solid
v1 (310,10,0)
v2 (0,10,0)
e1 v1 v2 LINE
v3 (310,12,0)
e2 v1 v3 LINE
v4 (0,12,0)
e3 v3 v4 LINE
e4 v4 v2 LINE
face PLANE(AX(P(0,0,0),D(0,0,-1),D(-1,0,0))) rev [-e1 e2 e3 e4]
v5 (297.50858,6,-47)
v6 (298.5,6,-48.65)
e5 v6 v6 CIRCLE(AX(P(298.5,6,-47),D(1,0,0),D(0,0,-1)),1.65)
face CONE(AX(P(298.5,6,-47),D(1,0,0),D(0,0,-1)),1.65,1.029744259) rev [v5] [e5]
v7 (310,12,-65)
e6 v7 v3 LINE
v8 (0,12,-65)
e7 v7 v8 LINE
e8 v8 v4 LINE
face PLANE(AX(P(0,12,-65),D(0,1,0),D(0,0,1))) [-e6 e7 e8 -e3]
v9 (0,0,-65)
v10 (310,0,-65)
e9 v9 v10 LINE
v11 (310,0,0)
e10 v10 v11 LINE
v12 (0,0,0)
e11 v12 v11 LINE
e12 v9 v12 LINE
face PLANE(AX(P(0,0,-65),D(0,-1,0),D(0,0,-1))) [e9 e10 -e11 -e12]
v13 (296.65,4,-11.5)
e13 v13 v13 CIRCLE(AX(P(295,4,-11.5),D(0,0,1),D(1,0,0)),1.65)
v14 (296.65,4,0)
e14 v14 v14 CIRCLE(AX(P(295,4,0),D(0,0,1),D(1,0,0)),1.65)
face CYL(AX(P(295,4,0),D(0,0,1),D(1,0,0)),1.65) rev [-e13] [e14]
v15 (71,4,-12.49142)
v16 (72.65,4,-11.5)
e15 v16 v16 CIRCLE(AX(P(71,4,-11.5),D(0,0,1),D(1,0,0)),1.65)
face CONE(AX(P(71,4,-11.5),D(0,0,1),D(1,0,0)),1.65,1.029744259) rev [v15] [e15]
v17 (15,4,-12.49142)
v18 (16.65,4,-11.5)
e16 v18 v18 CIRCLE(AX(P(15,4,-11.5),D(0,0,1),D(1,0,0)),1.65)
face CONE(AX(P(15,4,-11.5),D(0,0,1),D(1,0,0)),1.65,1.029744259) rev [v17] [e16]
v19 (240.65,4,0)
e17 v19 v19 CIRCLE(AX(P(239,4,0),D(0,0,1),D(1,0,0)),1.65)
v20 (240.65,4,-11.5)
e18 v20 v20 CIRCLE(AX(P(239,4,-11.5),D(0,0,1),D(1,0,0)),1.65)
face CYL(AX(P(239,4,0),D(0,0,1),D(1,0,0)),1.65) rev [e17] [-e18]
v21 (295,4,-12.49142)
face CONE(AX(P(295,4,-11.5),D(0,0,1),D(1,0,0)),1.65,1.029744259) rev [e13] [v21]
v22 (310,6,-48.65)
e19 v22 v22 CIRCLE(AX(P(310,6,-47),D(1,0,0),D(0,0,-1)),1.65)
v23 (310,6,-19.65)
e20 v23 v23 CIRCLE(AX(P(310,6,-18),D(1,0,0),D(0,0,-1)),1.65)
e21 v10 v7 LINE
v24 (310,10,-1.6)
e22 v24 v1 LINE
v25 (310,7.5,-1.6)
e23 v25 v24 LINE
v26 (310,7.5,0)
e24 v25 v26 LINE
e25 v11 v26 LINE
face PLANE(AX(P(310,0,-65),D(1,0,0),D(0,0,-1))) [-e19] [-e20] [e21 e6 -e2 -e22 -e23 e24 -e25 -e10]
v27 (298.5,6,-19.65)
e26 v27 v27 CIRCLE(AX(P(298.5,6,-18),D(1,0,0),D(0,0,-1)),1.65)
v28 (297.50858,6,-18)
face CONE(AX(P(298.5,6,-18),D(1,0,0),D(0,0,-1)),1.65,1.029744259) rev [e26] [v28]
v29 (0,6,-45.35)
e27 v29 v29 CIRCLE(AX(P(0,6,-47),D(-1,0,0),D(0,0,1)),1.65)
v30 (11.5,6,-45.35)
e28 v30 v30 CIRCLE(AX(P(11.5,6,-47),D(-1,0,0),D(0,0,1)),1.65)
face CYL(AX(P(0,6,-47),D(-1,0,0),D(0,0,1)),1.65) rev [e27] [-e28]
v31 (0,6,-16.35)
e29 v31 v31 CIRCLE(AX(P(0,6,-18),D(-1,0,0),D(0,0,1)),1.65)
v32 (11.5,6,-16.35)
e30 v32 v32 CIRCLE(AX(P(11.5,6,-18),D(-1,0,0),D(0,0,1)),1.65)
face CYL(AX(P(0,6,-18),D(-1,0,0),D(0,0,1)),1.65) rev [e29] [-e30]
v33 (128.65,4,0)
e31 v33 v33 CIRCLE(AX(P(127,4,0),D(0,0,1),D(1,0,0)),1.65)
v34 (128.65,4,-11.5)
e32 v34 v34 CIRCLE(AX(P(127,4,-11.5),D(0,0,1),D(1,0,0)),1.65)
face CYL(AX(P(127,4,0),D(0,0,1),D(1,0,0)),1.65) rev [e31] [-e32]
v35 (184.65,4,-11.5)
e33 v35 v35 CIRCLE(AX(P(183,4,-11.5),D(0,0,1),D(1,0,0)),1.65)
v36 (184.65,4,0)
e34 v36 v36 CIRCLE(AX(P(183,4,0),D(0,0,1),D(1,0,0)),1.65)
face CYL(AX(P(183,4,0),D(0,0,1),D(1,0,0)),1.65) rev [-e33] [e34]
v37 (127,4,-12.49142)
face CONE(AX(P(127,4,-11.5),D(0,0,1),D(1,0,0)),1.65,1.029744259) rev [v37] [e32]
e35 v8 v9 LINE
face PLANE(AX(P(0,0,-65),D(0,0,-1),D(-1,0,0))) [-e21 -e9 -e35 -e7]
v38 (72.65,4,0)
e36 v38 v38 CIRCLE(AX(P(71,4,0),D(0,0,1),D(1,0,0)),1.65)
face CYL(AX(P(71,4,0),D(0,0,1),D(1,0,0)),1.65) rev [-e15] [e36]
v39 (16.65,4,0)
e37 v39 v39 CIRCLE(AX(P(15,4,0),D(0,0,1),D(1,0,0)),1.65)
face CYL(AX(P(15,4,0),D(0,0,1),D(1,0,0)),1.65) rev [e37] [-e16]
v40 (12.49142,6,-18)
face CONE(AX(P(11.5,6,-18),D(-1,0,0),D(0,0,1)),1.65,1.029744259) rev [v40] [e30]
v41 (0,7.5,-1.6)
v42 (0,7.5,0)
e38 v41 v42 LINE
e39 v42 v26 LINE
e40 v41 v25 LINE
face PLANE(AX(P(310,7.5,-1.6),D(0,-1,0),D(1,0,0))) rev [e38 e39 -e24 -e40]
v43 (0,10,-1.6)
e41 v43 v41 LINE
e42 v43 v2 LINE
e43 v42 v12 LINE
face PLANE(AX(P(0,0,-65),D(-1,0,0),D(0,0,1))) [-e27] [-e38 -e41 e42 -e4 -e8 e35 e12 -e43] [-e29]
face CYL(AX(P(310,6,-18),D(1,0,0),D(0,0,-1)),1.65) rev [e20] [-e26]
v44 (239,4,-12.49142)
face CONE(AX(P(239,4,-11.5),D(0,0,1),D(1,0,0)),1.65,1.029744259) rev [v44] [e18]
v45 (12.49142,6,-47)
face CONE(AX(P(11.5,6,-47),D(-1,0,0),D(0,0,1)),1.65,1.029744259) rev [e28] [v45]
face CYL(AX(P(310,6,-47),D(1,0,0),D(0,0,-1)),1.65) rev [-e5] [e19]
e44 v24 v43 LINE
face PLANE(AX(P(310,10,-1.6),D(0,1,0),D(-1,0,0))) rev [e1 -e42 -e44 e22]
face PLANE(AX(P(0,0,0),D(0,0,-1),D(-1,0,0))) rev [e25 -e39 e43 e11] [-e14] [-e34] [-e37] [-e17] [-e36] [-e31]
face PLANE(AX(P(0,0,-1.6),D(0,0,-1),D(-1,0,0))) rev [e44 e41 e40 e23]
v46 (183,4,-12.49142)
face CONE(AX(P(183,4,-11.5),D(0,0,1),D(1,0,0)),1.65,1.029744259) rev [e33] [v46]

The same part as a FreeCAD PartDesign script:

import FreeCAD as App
import Part
import Sketcher
Q = App.Units.Quantity

doc = App.newDocument("Part")
body = doc.addObject("PartDesign::Body", "Body")

# Sketch on XY plane
sketch1 = body.newObject("Sketcher::SketchObject", "Sketch")
sketch1.AttachmentSupport = (doc.getObject("XY_Plane"), [""])
sketch1.MapMode = "FlatFace"
sketch1.addGeometry([
    Part.LineSegment(App.Vector(0, 12, 0), App.Vector(0, 0, 0)),
    Part.LineSegment(App.Vector(0, 0, 0), App.Vector(310, 0, 0)),
    Part.LineSegment(App.Vector(310, 0, 0), App.Vector(310, 12, 0)),
    Part.LineSegment(App.Vector(310, 12, 0), App.Vector(0, 12, 0)),
], False)
sketch1.addConstraint([
    Sketcher.Constraint("Coincident", 0, 2, 1, 1),
    Sketcher.Constraint("Coincident", 1, 2, 2, 1),
    Sketcher.Constraint("Coincident", 2, 2, 3, 1),
    Sketcher.Constraint("Coincident", 3, 2, 0, 1),
    Sketcher.Constraint("Vertical", 0),
    Sketcher.Constraint("Horizontal", 1),
    Sketcher.Constraint("Vertical", 2),
    Sketcher.Constraint("Horizontal", 3),
    Sketcher.Constraint("Coincident", 0, 2, -1, 1),
    Sketcher.Constraint("DistanceX", 1, 1, 1, 2, Q("310 mm")),
    Sketcher.Constraint("DistanceY", 0, 2, 0, 1, Q("12 mm")),
])
pad1 = body.newObject("PartDesign::Pad", "Pad")
pad1.Profile = sketch1
pad1.Length = 65
pad1.Reversed = True

# Sketch on XY plane
sketch2 = body.newObject("Sketcher::SketchObject", "Sketch001")
sketch2.AttachmentSupport = (doc.getObject("XY_Plane"), [""])
sketch2.MapMode = "FlatFace"
sketch2.addGeometry([
    Part.LineSegment(App.Vector(0, 10, 0), App.Vector(0, 7.5, 0)),
    Part.LineSegment(App.Vector(0, 7.5, 0), App.Vector(310, 7.5, 0)),
    Part.LineSegment(App.Vector(310, 7.5, 0), App.Vector(310, 10, 0)),
    Part.LineSegment(App.Vector(310, 10, 0), App.Vector(0, 10, 0)),
], False)
sketch2.addConstraint([
    Sketcher.Constraint("Coincident", 0, 2, 1, 1),
    Sketcher.Constraint("Coincident", 1, 2, 2, 1),
    Sketcher.Constraint("Coincident", 2, 2, 3, 1),
    Sketcher.Constraint("Coincident", 3, 2, 0, 1),
    Sketcher.Constraint("Vertical", 0),
    Sketcher.Constraint("Horizontal", 1),
    Sketcher.Constraint("Vertical", 2),
    Sketcher.Constraint("Horizontal", 3),
    Sketcher.Constraint("PointOnObject", 0, 2, -2),
    Sketcher.Constraint("DistanceX", 1, 1, 1, 2, Q("310 mm")),
    Sketcher.Constraint("DistanceY", 0, 2, 0, 1, Q("2.5 mm")),
    Sketcher.Constraint("DistanceY", -1, 1, 2, 2, Q("10 mm")),
])
pocket1 = body.newObject("PartDesign::Pocket", "Pocket")
pocket1.Profile = sketch2
pocket1.Length = 1.6

# Sketch on XY plane
sketch3 = body.newObject("Sketcher::SketchObject", "Sketch002")
sketch3.AttachmentSupport = (doc.getObject("XY_Plane"), [""])
sketch3.MapMode = "FlatFace"
sketch3.addGeometry([
    Part.Circle(App.Vector(295, 4, 0), App.Vector(0, 0, 1), 1.65),  # 0
    Part.Circle(App.Vector(15, 4, 0), App.Vector(0, 0, 1), 1.65),  # 1
    Part.Circle(App.Vector(71, 4, 0), App.Vector(0, 0, 1), 1.65),  # 2
    Part.Circle(App.Vector(127, 4, 0), App.Vector(0, 0, 1), 1.65),  # 3
    Part.Circle(App.Vector(183, 4, 0), App.Vector(0, 0, 1), 1.65),  # 4
    Part.Circle(App.Vector(239, 4, 0), App.Vector(0, 0, 1), 1.65),  # 5
], False)
sketch3.addConstraint([
    Sketcher.Constraint("Equal", 0, 1),
    Sketcher.Constraint("Equal", 1, 2),
    Sketcher.Constraint("Equal", 2, 3),
    Sketcher.Constraint("Equal", 3, 4),
    Sketcher.Constraint("Equal", 4, 5),
    Sketcher.Constraint("Horizontal", 0, 3, 1, 3),
    Sketcher.Constraint("Horizontal", 1, 3, 2, 3),
    Sketcher.Constraint("Horizontal", 2, 3, 3, 3),
    Sketcher.Constraint("Horizontal", 3, 3, 4, 3),
    Sketcher.Constraint("Horizontal", 4, 3, 5, 3),
    Sketcher.Constraint("Diameter", 0, Q("3.3 mm")),
    Sketcher.Constraint("DistanceX", -1, 1, 0, 3, Q("295 mm")),
    Sketcher.Constraint("DistanceY", -1, 1, 0, 3, Q("4 mm")),
    Sketcher.Constraint("DistanceX", -1, 1, 1, 3, Q("15 mm")),
    Sketcher.Constraint("DistanceX", -1, 1, 2, 3, Q("71 mm")),
    Sketcher.Constraint("DistanceX", -1, 1, 3, 3, Q("127 mm")),
    Sketcher.Constraint("DistanceX", -1, 1, 4, 3, Q("183 mm")),
    Sketcher.Constraint("DistanceX", -1, 1, 5, 3, Q("239 mm")),
])
doc.recompute()
hole = body.newObject("PartDesign::Hole", "Hole")
hole.Profile = sketch3
hole.ThreadType = "None"
hole.Diameter = 3.3
hole.DepthType = "Dimension"
hole.Depth = 11.5
hole.DrillPoint = "Angled"
hole.DrillPointAngle = 118

# Sketch on XZ plane
sketch4 = body.newObject("Sketcher::SketchObject", "Sketch003")
sketch4.AttachmentSupport = (doc.getObject("XZ_Plane"), [""])
sketch4.MapMode = "FlatFace"
sketch4.AttachmentOffset = App.Placement(App.Vector(0, 0, -6), App.Rotation())
sketch4.addGeometry([
    Part.LineSegment(App.Vector(12.49142, -18, 0), App.Vector(0, -18, 0)),
    Part.LineSegment(App.Vector(0, -18, 0), App.Vector(0, -16.35, 0)),
    Part.LineSegment(App.Vector(0, -16.35, 0), App.Vector(11.5, -16.35, 0)),
    Part.LineSegment(App.Vector(11.5, -16.35, 0), App.Vector(12.49142, -18, 0)),
], False)
sketch4.addGeometry(Part.LineSegment(App.Vector(0, -18, 0), App.Vector(12.49142, -18, 0)), True)  # axis
sketch4.addConstraint([
    Sketcher.Constraint("Coincident", 0, 2, 1, 1),
    Sketcher.Constraint("Coincident", 1, 2, 2, 1),
    Sketcher.Constraint("Coincident", 2, 2, 3, 1),
    Sketcher.Constraint("Coincident", 3, 2, 0, 1),
    Sketcher.Constraint("Horizontal", 0),
    Sketcher.Constraint("Vertical", 1),
    Sketcher.Constraint("Horizontal", 2),
    Sketcher.Constraint("Horizontal", 4),
    Sketcher.Constraint("Coincident", 4, 1, 0, 2),
    Sketcher.Constraint("PointOnObject", 0, 2, -2),
    Sketcher.Constraint("Equal", 0, 4),
    Sketcher.Constraint("Angle", 3, Q("-59 deg")),
    Sketcher.Constraint("DistanceX", 2, 1, 2, 2, Q("11.5 mm")),
    Sketcher.Constraint("DistanceY", 0, 2, -1, 1, Q("18 mm")),
    Sketcher.Constraint("DistanceY", 1, 1, 1, 2, Q("1.65 mm")),
])
groove = body.newObject("PartDesign::Groove", "Groove")
groove.Profile = sketch4
groove.ReferenceAxis = (sketch4, ["Axis0"])
groove.Angle = 360
doc.recompute()

linearpattern = body.newObject("PartDesign::LinearPattern", "LinearPattern")
linearpattern.Originals = [groove]
linearpattern.Direction = (doc.getObject("Z_Axis"), [""])
linearpattern.Mode = "offset"
linearpattern.Offset = 29
linearpattern.Occurrences = 2
linearpattern.Reversed = True
body.Tip = linearpattern
doc.recompute()

datumplane = body.newObject("PartDesign::Plane", "DatumPlane")
datumplane.AttachmentSupport = (doc.getObject("YZ_Plane"), [""])
datumplane.MapMode = "FlatFace"
datumplane.AttachmentOffset = App.Placement(App.Vector(0, 0, 155), App.Rotation())
mirrored = body.newObject("PartDesign::Mirrored", "Mirrored")
mirrored.Originals = [groove]
mirrored.MirrorPlane = (datumplane, [""])
body.Tip = mirrored

# Sketch on XZ plane
sketch5 = body.newObject("Sketcher::SketchObject", "Sketch004")
sketch5.AttachmentSupport = (doc.getObject("XZ_Plane"), [""])
sketch5.MapMode = "FlatFace"
sketch5.AttachmentOffset = App.Placement(App.Vector(0, 0, -6), App.Rotation())
sketch5.addGeometry([
    Part.LineSegment(App.Vector(310, -47, 0), App.Vector(297.50858, -47, 0)),
    Part.LineSegment(App.Vector(297.50858, -47, 0), App.Vector(298.5, -45.35, 0)),
    Part.LineSegment(App.Vector(298.5, -45.35, 0), App.Vector(310, -45.35, 0)),
    Part.LineSegment(App.Vector(310, -45.35, 0), App.Vector(310, -47, 0)),
], False)
sketch5.addGeometry(Part.LineSegment(App.Vector(297.50858, -47, 0), App.Vector(310, -47, 0)), True)  # axis
sketch5.addConstraint([
    Sketcher.Constraint("Coincident", 0, 2, 1, 1),
    Sketcher.Constraint("Coincident", 1, 2, 2, 1),
    Sketcher.Constraint("Coincident", 2, 2, 3, 1),
    Sketcher.Constraint("Coincident", 3, 2, 0, 1),
    Sketcher.Constraint("Horizontal", 0),
    Sketcher.Constraint("Horizontal", 2),
    Sketcher.Constraint("Vertical", 3),
    Sketcher.Constraint("Horizontal", 4),
    Sketcher.Constraint("Coincident", 4, 1, 0, 2),
    Sketcher.Constraint("Vertical", 2, 2, 4, 2),
    Sketcher.Constraint("Angle", 1, Q("59 deg")),
    Sketcher.Constraint("DistanceX", 2, 1, 2, 2, Q("11.5 mm")),
    Sketcher.Constraint("DistanceY", 0, 2, -1, 1, Q("47 mm")),
    Sketcher.Constraint("DistanceX", -1, 1, 2, 2, Q("310 mm")),
    Sketcher.Constraint("DistanceY", 3, 2, 3, 1, Q("1.65 mm")),
])
groove2 = body.newObject("PartDesign::Groove", "Groove001")
groove2.Profile = sketch5
groove2.ReferenceAxis = (sketch5, ["Axis0"])
groove2.Angle = 360

doc.recompute()
